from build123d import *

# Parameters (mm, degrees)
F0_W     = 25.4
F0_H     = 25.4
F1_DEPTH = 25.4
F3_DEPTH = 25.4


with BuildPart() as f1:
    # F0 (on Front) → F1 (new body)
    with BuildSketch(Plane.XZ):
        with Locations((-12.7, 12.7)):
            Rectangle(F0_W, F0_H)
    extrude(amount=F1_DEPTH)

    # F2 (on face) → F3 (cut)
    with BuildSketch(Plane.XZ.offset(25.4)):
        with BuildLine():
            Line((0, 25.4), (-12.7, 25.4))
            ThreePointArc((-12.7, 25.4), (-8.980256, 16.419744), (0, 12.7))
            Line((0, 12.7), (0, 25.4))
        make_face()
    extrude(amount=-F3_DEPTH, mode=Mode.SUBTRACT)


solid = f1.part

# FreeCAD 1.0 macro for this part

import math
import FreeCAD as App
import Part
import Sketcher
Q = App.Units.Quantity


def add_polygon(sketch, points):
    """Adds a closed chain of lines whose ends are joined by coincident constraints."""
    first, n = sketch.GeometryCount, len(points)
    for a, b in zip(points, points[1:] + points[:1]):
        sketch.addGeometry(Part.LineSegment(App.Vector(*a, 0), App.Vector(*b, 0)), False)
    for i in range(n):
        sketch.addConstraint(Sketcher.Constraint("Coincident", first + i, 2, first + (i + 1) % n, 1))

doc = App.newDocument("Part")
body = doc.addObject("PartDesign::Body", "Body")

# Sketch on XZ plane
sketch1 = body.newObject("Sketcher::SketchObject", "Sketch")
sketch1.AttachmentSupport = (doc.getObject("XZ_Plane"), [""])
sketch1.MapMode = "FlatFace"
add_polygon(sketch1, [(-25.4, 25.4), (-25.4, 0), (0, 0), (0, 25.4)])  # lines 0-3
sketch1.addConstraint([
    Sketcher.Constraint("Vertical", 0),
    Sketcher.Constraint("Horizontal", 1),
    Sketcher.Constraint("Vertical", 2),
    Sketcher.Constraint("Horizontal", 3),
    Sketcher.Constraint("Coincident", 1, 2, -1, 1),
    Sketcher.Constraint("Equal", 3, 0),
    Sketcher.Constraint("DistanceX", 1, 1, 1, 2, Q("1 in")),
])
pad1 = body.newObject("PartDesign::Pad", "Pad")
pad1.Profile = sketch1
pad1.Length = Q("1 in")

# Sketch on XZ plane
sketch2 = body.newObject("Sketcher::SketchObject", "Sketch001")
sketch2.AttachmentSupport = (doc.getObject("XZ_Plane"), [""])
sketch2.MapMode = "FlatFace"
sketch2.AttachmentOffset = App.Placement(App.Vector(0, 0, 1 * 25.4), App.Rotation())
sketch2.addGeometry([
    Part.LineSegment(App.Vector(0, 25.4, 0), App.Vector(-12.7, 25.4, 0)),
    Part.ArcOfCircle(Part.Circle(App.Vector(0, 25.4, 0), App.Vector(0, 0, 1), 12.7), math.radians(-179.999998), math.radians(-90.000002)),
    Part.LineSegment(App.Vector(0, 12.7, 0), App.Vector(0, 25.4, 0)),
], False)
sketch2.addConstraint([
    Sketcher.Constraint("Coincident", 0, 2, 1, 1),
    Sketcher.Constraint("Coincident", 1, 2, 2, 1),
    Sketcher.Constraint("Coincident", 2, 2, 0, 1),
    Sketcher.Constraint("Horizontal", 0),
    Sketcher.Constraint("Vertical", 2),
    Sketcher.Constraint("Coincident", 2, 2, 1, 3),
    Sketcher.Constraint("PointOnObject", 1, 3, -2),
    Sketcher.Constraint("Radius", 1, Q("0.5 in")),
    Sketcher.Constraint("DistanceY", -1, 1, 1, 3, Q("1 in")),
])
pocket1 = body.newObject("PartDesign::Pocket", "Pocket")
pocket1.Profile = sketch2
pocket1.Length = Q("1 in")

doc.recompute()
